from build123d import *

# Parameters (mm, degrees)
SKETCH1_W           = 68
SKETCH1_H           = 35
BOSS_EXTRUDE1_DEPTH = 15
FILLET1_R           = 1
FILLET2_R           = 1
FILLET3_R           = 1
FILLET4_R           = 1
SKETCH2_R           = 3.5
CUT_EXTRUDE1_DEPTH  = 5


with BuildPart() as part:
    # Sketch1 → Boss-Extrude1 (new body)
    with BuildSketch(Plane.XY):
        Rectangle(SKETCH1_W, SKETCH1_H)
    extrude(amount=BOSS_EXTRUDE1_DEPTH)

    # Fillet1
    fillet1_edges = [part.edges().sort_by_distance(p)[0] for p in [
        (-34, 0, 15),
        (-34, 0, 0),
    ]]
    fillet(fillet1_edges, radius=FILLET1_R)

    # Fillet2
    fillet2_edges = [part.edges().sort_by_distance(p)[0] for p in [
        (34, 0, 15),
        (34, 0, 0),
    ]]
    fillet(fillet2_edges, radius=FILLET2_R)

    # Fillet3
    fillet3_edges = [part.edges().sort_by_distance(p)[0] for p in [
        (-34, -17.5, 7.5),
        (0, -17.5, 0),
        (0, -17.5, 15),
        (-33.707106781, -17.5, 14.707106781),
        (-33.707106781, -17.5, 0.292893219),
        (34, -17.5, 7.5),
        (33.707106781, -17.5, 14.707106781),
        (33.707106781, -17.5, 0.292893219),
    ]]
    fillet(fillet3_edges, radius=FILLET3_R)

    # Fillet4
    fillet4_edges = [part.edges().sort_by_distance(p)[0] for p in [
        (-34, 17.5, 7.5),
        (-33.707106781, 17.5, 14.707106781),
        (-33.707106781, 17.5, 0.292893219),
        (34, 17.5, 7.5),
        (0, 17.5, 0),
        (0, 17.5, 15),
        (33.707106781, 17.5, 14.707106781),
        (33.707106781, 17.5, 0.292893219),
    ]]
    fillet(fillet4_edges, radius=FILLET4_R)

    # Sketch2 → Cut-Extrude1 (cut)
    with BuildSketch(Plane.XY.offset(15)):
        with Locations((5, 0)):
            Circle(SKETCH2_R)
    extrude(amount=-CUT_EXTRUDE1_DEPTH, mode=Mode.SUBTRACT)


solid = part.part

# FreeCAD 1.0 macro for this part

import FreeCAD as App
import Part
import Sketcher
from FreeCAD import Vector


def edges_at(feature, points):
    """Names of the edges that pass closest to the given points."""
    edges = feature.Shape.Edges
    near = lambda p: min(range(len(edges)), key=lambda i: edges[i].distToShape(Part.Vertex(*p))[0])
    return sorted({f"Edge{near(p) + 1}" for p in points})


def add_polygon(sketch, points):
    """Adds a closed chain of lines whose ends are joined by coincident constraints."""
    first, n = sketch.GeometryCount, len(points)
    for a, b in zip(points, points[1:] + points[:1]):
        sketch.addGeometry(Part.LineSegment(App.Vector(*a, 0), App.Vector(*b, 0)), False)
    for i in range(n):
        sketch.addConstraint(Sketcher.Constraint("Coincident", first + i, 2, first + (i + 1) % n, 1))

doc = App.newDocument("Part")
body = doc.addObject("PartDesign::Body", "Body")

# Sketch on XY plane
sketch1 = body.newObject("Sketcher::SketchObject", "Sketch")
sketch1.AttachmentSupport = (doc.getObject("XY_Plane"), [""])
sketch1.MapMode = "FlatFace"
add_polygon(sketch1, [(-34, 18), (-34, -18), (34, -18), (34, 18)])  # lines 0-3
sketch1.addConstraint([
    Sketcher.Constraint("Vertical", 0),
    Sketcher.Constraint("Horizontal", 1),
    Sketcher.Constraint("Vertical", 2),
    Sketcher.Constraint("Horizontal", 3),
    Sketcher.Constraint("Symmetric", 0, 2, 2, 2, -1, 1),
    Sketcher.Constraint("DistanceX", 1, 1, 1, 2, 68.0),
    Sketcher.Constraint("DistanceY", 0, 2, 0, 1, 35.0),
])
pad1 = body.newObject("PartDesign::Pad", "Pad")
pad1.Profile = sketch1
pad1.Length = 15
doc.recompute()

fillet = body.newObject("PartDesign::Fillet", "Fillet")
fillet.Base = (pad1, edges_at(pad1, [(-34, 0, 15), (-34, 0, 0)]))
fillet.Radius = 1
doc.recompute()

fillet2 = body.newObject("PartDesign::Fillet", "Fillet001")
fillet2.Base = (fillet, edges_at(fillet, [(34, 0, 15), (34, 0, 0)]))
fillet2.Radius = 1
doc.recompute()

fillet3 = body.newObject("PartDesign::Fillet", "Fillet002")
fillet3.Base = (fillet2, edges_at(fillet2, [
    (-34, -17.5, 7.5),
    (0, -17.5, 0),
    (0, -17.5, 15),
    (-33.707, -17.5, 14.707),
    (-33.707, -17.5, 0.293),
    (34, -17.5, 7.5),
    (33.707, -17.5, 14.707),
    (33.707, -17.5, 0.293),
]))
fillet3.Radius = 1
doc.recompute()

fillet4 = body.newObject("PartDesign::Fillet", "Fillet003")
fillet4.Base = (fillet3, edges_at(fillet3, [
    (-34, 17.5, 7.5),
    (-33.707, 17.5, 14.707),
    (-33.707, 17.5, 0.293),
    (34, 17.5, 7.5),
    (0, 17.5, 0),
    (0, 17.5, 15),
    (33.707, 17.5, 14.707),
    (33.707, 17.5, 0.293),
]))
fillet4.Radius = 1

# Sketch on XY plane
sketch2 = body.newObject("Sketcher::SketchObject", "Sketch001")
sketch2.AttachmentSupport = (doc.getObject("XY_Plane"), [""])
sketch2.MapMode = "FlatFace"
sketch2.AttachmentOffset = App.Placement(Vector(0, 0, 15), App.Rotation())
sketch2.addGeometry(Part.Circle(Vector(5, 0, 0), Vector(0, 0, 1), 3.5), False)
sketch2.addConstraint([
    Sketcher.Constraint("PointOnObject", 0, 3, -1),
    Sketcher.Constraint("Diameter", 0, 7.0),
    Sketcher.Constraint("DistanceX", -1, 1, 0, 3, 5.0),
])
pocket1 = body.newObject("PartDesign::Pocket", "Pocket")
pocket1.Profile = sketch2
pocket1.Length = 5

doc.recompute()
